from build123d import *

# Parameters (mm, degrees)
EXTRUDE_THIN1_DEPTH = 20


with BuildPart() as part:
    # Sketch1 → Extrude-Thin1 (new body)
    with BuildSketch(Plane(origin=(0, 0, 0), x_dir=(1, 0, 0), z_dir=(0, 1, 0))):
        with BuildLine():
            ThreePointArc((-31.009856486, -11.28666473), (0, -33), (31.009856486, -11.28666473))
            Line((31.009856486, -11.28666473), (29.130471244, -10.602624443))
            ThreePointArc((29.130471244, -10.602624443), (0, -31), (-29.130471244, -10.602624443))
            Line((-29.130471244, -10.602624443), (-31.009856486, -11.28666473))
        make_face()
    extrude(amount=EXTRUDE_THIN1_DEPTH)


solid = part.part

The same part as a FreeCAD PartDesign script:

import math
import FreeCAD as App
import Part
import Sketcher
Q = App.Units.Quantity

doc = App.newDocument("Part")
body = doc.addObject("PartDesign::Body", "Body")

sketch1 = body.newObject("Sketcher::SketchObject", "Sketch")
sketch1.AttachmentSupport = (doc.getObject("XZ_Plane"), [""])
sketch1.MapMode = "FlatFace"
sketch1.addGeometry([
    Part.ArcOfCircle(Part.Circle(App.Vector(0, 0, 0), App.Vector(0, 0, 1), 33), math.radians(20), math.radians(160)),
    Part.LineSegment(App.Vector(31, 11.3, 0), App.Vector(29.1, 10.6, 0)),
    Part.ArcOfCircle(Part.Circle(App.Vector(0, 0, 0), App.Vector(0, 0, 1), 31), math.radians(20), math.radians(160)),
    Part.LineSegment(App.Vector(-29.1, 10.6, 0), App.Vector(-31, 11.3, 0)),
], False)
sketch1.addConstraint([
    Sketcher.Constraint("Coincident", 0, 1, 1, 1),
    Sketcher.Constraint("Coincident", 1, 2, 2, 1),
    Sketcher.Constraint("Coincident", 2, 2, 3, 1),
    Sketcher.Constraint("Coincident", 3, 2, 0, 2),
    Sketcher.Constraint("Coincident", 0, 3, -1, 1),
    Sketcher.Constraint("Coincident", 2, 3, -1, 1),
    Sketcher.Constraint("Horizontal", 1, 2, 2, 2),
    Sketcher.Constraint("Horizontal", 0, 1, 3, 2),
    Sketcher.Constraint("Radius", 0, 33.0),
    Sketcher.Constraint("Radius", 2, 31.0),
    Sketcher.Constraint("Angle", 1, Q("-160 deg")),
    Sketcher.Constraint("DistanceX", -1, 1, 1, 2, 29.130471),
])
pad1 = body.newObject("PartDesign::Pad", "Pad")
pad1.Profile = sketch1
pad1.Length = 20
pad1.Reversed = True

doc.recompute()
